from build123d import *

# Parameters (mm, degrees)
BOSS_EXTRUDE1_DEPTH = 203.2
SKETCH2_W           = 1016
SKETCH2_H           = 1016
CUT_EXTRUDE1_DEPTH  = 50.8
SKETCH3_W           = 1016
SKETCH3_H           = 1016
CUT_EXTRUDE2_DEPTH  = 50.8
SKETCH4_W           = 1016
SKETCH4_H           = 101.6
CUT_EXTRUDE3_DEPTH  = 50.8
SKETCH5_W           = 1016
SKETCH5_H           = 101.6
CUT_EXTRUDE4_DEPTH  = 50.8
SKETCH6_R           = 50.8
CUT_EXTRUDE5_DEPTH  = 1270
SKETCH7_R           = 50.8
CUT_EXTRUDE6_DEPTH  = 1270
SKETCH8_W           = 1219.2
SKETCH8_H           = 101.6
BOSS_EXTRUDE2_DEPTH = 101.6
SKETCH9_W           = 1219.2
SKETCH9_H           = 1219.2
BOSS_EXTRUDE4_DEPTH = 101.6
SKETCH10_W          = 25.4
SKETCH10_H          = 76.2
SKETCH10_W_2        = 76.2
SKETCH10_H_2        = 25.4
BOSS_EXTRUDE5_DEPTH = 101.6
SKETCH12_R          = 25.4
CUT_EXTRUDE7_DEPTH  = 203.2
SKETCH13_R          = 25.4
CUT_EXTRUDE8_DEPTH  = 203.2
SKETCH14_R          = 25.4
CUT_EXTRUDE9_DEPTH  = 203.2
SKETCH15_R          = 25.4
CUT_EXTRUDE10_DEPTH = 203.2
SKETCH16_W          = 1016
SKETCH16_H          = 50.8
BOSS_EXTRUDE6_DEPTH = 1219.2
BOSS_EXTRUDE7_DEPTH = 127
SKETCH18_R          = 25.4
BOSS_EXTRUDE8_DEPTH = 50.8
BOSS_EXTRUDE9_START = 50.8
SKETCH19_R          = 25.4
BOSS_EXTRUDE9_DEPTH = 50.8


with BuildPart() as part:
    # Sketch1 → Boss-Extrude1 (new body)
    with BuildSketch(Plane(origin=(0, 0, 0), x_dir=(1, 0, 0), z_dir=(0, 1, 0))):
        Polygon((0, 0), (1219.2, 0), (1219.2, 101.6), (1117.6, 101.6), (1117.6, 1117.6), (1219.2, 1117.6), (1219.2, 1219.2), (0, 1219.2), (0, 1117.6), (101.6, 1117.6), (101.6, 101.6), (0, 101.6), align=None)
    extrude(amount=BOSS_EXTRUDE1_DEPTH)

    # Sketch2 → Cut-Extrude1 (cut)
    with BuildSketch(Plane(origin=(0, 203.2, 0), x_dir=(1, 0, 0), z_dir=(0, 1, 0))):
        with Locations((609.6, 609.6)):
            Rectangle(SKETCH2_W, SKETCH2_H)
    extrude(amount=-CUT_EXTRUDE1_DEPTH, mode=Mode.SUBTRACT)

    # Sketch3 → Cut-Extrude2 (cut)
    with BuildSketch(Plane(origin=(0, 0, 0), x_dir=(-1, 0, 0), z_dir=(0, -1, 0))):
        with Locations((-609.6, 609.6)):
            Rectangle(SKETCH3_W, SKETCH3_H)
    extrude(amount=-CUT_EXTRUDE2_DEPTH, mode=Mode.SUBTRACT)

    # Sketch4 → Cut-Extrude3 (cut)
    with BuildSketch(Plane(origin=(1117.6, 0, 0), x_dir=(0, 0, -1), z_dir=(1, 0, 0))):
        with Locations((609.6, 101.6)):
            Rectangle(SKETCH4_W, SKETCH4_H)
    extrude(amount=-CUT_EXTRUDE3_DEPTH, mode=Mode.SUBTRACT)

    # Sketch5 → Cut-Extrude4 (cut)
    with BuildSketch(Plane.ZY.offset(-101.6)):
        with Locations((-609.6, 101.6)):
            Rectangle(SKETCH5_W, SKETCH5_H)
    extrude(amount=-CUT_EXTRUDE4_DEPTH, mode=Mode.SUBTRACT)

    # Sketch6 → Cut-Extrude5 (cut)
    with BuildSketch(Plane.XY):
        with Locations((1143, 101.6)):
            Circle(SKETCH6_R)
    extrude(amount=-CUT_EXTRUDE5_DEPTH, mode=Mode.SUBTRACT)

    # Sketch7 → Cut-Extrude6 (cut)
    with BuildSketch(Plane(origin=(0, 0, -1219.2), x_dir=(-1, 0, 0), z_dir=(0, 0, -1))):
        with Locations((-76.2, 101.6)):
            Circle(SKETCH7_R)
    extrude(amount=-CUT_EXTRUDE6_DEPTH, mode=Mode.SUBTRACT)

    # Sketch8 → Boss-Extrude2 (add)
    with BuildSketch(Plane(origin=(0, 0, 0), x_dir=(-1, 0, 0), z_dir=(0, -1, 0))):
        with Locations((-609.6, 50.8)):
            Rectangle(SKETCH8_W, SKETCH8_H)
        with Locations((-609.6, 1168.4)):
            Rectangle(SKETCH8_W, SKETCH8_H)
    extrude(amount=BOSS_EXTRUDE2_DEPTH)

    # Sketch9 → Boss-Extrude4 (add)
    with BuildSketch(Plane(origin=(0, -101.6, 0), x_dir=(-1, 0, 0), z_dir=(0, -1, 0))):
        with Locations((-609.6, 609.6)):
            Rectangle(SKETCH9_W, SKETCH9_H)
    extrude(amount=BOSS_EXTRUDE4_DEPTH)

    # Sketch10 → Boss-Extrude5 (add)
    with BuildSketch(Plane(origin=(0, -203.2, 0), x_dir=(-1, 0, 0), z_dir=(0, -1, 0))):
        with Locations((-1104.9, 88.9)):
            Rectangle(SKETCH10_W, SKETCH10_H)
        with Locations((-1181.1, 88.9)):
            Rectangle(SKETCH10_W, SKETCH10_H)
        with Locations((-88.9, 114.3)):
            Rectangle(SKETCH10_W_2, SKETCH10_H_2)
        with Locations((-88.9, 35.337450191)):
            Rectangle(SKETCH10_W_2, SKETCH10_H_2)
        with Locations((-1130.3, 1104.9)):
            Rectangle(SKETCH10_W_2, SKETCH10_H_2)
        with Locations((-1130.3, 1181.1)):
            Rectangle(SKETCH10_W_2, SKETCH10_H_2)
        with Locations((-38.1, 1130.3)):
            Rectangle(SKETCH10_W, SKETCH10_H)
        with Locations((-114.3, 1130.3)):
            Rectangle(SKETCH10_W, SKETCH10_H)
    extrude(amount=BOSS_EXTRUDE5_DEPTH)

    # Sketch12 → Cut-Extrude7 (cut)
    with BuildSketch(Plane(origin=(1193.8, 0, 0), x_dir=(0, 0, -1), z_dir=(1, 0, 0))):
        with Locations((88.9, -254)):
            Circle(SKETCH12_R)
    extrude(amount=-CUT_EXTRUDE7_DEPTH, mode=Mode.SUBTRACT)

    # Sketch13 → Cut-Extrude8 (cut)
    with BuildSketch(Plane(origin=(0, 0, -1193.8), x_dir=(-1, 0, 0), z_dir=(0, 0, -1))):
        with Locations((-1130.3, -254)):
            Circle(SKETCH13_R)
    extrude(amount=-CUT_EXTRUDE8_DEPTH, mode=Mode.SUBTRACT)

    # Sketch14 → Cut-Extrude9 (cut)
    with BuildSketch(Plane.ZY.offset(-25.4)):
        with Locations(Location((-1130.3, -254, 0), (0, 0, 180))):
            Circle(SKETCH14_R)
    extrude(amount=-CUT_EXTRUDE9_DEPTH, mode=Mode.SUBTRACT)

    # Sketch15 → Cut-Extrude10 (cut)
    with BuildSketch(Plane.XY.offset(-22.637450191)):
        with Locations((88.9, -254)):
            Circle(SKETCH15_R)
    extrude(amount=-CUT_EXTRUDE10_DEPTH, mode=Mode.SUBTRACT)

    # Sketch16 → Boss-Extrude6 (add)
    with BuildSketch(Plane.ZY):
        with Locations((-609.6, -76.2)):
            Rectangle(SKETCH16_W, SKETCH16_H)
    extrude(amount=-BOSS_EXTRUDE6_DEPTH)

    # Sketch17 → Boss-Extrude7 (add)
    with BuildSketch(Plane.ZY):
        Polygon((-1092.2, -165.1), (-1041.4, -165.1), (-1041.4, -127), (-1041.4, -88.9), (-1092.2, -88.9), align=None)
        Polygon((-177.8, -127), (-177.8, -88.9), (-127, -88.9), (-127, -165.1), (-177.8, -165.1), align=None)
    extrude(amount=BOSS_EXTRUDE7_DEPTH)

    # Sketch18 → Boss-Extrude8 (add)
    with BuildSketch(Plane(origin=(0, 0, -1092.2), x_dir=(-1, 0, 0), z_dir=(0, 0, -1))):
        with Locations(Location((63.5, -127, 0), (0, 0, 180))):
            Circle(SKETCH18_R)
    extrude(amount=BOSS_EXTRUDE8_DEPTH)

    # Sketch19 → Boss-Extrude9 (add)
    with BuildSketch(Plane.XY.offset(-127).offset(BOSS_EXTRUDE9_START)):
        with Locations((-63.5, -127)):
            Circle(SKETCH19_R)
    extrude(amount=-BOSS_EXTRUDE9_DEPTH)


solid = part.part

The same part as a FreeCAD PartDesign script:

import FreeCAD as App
import Part
import Sketcher
Q = App.Units.Quantity

doc = App.newDocument("Part")
body = doc.addObject("PartDesign::Body", "Body")

sketch1 = doc.addObject("Sketcher::SketchObject", "Sketch")
body.addObject(sketch1)
sketch1.AttachmentSupport = (doc.XZ_Plane, [""])
sketch1.MapMode = "FlatFace"
sketch1.addGeometry(Part.LineSegment(App.Vector(0, 0, 0), App.Vector(1219, 0, 0)), False)
sketch1.addGeometry(Part.LineSegment(App.Vector(1219, 0, 0), App.Vector(1219, -102, 0)), False)
sketch1.addGeometry(Part.LineSegment(App.Vector(1219, -102, 0), App.Vector(1118, -102, 0)), False)
sketch1.addGeometry(Part.LineSegment(App.Vector(1118, -102, 0), App.Vector(1118, -1118, 0)), False)
sketch1.addGeometry(Part.LineSegment(App.Vector(1118, -1118, 0), App.Vector(1219, -1118, 0)), False)
sketch1.addGeometry(Part.LineSegment(App.Vector(1219, -1118, 0), App.Vector(1219, -1219, 0)), False)
sketch1.addGeometry(Part.LineSegment(App.Vector(1219, -1219, 0), App.Vector(0, -1219, 0)), False)
sketch1.addGeometry(Part.LineSegment(App.Vector(0, -1219, 0), App.Vector(0, -1118, 0)), False)
sketch1.addGeometry(Part.LineSegment(App.Vector(0, -1118, 0), App.Vector(102, -1118, 0)), False)
sketch1.addGeometry(Part.LineSegment(App.Vector(102, -1118, 0), App.Vector(102, -102, 0)), False)
sketch1.addGeometry(Part.LineSegment(App.Vector(102, -102, 0), App.Vector(0, -102, 0)), False)
sketch1.addGeometry(Part.LineSegment(App.Vector(0, -102, 0), App.Vector(0, 0, 0)), False)
sketch1.addConstraint(Sketcher.Constraint("Coincident", 0, 2, 1, 1))
sketch1.addConstraint(Sketcher.Constraint("Coincident", 1, 2, 2, 1))
sketch1.addConstraint(Sketcher.Constraint("Coincident", 2, 2, 3, 1))
sketch1.addConstraint(Sketcher.Constraint("Coincident", 3, 2, 4, 1))
sketch1.addConstraint(Sketcher.Constraint("Coincident", 4, 2, 5, 1))
sketch1.addConstraint(Sketcher.Constraint("Coincident", 5, 2, 6, 1))
sketch1.addConstraint(Sketcher.Constraint("Coincident", 6, 2, 7, 1))
sketch1.addConstraint(Sketcher.Constraint("Coincident", 7, 2, 8, 1))
sketch1.addConstraint(Sketcher.Constraint("Coincident", 8, 2, 9, 1))
sketch1.addConstraint(Sketcher.Constraint("Coincident", 9, 2, 10, 1))
sketch1.addConstraint(Sketcher.Constraint("Coincident", 10, 2, 11, 1))
sketch1.addConstraint(Sketcher.Constraint("Coincident", 11, 2, 0, 1))
sketch1.addConstraint(Sketcher.Constraint("Horizontal", 0))
sketch1.addConstraint(Sketcher.Constraint("Vertical", 1))
sketch1.addConstraint(Sketcher.Constraint("Horizontal", 2))
sketch1.addConstraint(Sketcher.Constraint("Vertical", 3))
sketch1.addConstraint(Sketcher.Constraint("Horizontal", 4))
sketch1.addConstraint(Sketcher.Constraint("Vertical", 5))
sketch1.addConstraint(Sketcher.Constraint("Horizontal", 6))
sketch1.addConstraint(Sketcher.Constraint("Vertical", 7))
sketch1.addConstraint(Sketcher.Constraint("Horizontal", 8))
sketch1.addConstraint(Sketcher.Constraint("Vertical", 9))
sketch1.addConstraint(Sketcher.Constraint("Horizontal", 10))
sketch1.addConstraint(Sketcher.Constraint("Vertical", 11))
sketch1.addConstraint(Sketcher.Constraint("Coincident", 11, 2, -1, 1))
sketch1.addConstraint(Sketcher.Constraint("PointOnObject", 6, 2, -2))
sketch1.addConstraint(Sketcher.Constraint("Horizontal", 4, 2, 7, 2))
sketch1.addConstraint(Sketcher.Constraint("Horizontal", 2, 2, 9, 2))
sketch1.addConstraint(Sketcher.Constraint("Vertical", 1, 2, 4, 2))
sketch1.addConstraint(Sketcher.Constraint("Equal", 4, 8))
sketch1.addConstraint(Sketcher.Constraint("Equal", 10, 1))
sketch1.addConstraint(Sketcher.Constraint("Equal", 1, 5))
sketch1.addConstraint(Sketcher.Constraint("DistanceX", 0, 1, 0, 2, Q("48 in")))
sketch1.addConstraint(Sketcher.Constraint("DistanceX", 2, 2, 2, 1, Q("4 in")))
sketch1.addConstraint(Sketcher.Constraint("DistanceY", 3, 2, 3, 1, Q("40 in")))
pad1 = doc.addObject("PartDesign::Pad", "Pad")
body.addObject(pad1)
pad1.Profile = sketch1
pad1.Length = Q("8 in")
pad1.Reversed = True

sketch2 = doc.addObject("Sketcher::SketchObject", "Sketch001")
body.addObject(sketch2)
sketch2.AttachmentSupport = (doc.XZ_Plane, [""])
sketch2.MapMode = "FlatFace"
sketch2.AttachmentOffset = App.Placement(App.Vector(0, 0, -8 * 25.4), App.Rotation())
sketch2.addGeometry(Part.LineSegment(App.Vector(102, -1118, 0), App.Vector(102, -102, 0)), False)
sketch2.addGeometry(Part.LineSegment(App.Vector(102, -102, 0), App.Vector(1118, -102, 0)), False)
sketch2.addGeometry(Part.LineSegment(App.Vector(1118, -102, 0), App.Vector(1118, -1118, 0)), False)
sketch2.addGeometry(Part.LineSegment(App.Vector(1118, -1118, 0), App.Vector(102, -1118, 0)), False)
sketch2.addConstraint(Sketcher.Constraint("Coincident", 0, 2, 1, 1))
sketch2.addConstraint(Sketcher.Constraint("Coincident", 1, 2, 2, 1))
sketch2.addConstraint(Sketcher.Constraint("Coincident", 2, 2, 3, 1))
sketch2.addConstraint(Sketcher.Constraint("Coincident", 3, 2, 0, 1))
sketch2.addConstraint(Sketcher.Constraint("Vertical", 0))
sketch2.addConstraint(Sketcher.Constraint("Horizontal", 1))
sketch2.addConstraint(Sketcher.Constraint("Vertical", 2))
sketch2.addConstraint(Sketcher.Constraint("Horizontal", 3))
sketch2.addConstraint(Sketcher.Constraint("Equal", 3, 0))
sketch2.addConstraint(Sketcher.Constraint("DistanceX", 1, 1, 1, 2, Q("40 in")))
sketch2.addConstraint(Sketcher.Constraint("DistanceX", -1, 1, 0, 2, Q("4 in")))
sketch2.addConstraint(Sketcher.Constraint("DistanceY", 0, 2, -1, 1, Q("4 in")))
pocket1 = doc.addObject("PartDesign::Pocket", "Pocket")
body.addObject(pocket1)
pocket1.Profile = sketch2
pocket1.Length = Q("2 in")
pocket1.Reversed = True

sketch3 = doc.addObject("Sketcher::SketchObject", "Sketch002")
body.addObject(sketch3)
sketch3.AttachmentSupport = (doc.XZ_Plane, [""])
sketch3.MapMode = "FlatFace"
sketch3.addGeometry(Part.LineSegment(App.Vector(1118, -1118, 0), App.Vector(1118, -102, 0)), False)
sketch3.addGeometry(Part.LineSegment(App.Vector(1118, -102, 0), App.Vector(102, -102, 0)), False)
sketch3.addGeometry(Part.LineSegment(App.Vector(102, -102, 0), App.Vector(102, -1118, 0)), False)
sketch3.addGeometry(Part.LineSegment(App.Vector(102, -1118, 0), App.Vector(1118, -1118, 0)), False)
sketch3.addConstraint(Sketcher.Constraint("Coincident", 0, 2, 1, 1))
sketch3.addConstraint(Sketcher.Constraint("Coincident", 1, 2, 2, 1))
sketch3.addConstraint(Sketcher.Constraint("Coincident", 2, 2, 3, 1))
sketch3.addConstraint(Sketcher.Constraint("Coincident", 3, 2, 0, 1))
sketch3.addConstraint(Sketcher.Constraint("Vertical", 0))
sketch3.addConstraint(Sketcher.Constraint("Horizontal", 1))
sketch3.addConstraint(Sketcher.Constraint("Vertical", 2))
sketch3.addConstraint(Sketcher.Constraint("Horizontal", 3))
sketch3.addConstraint(Sketcher.Constraint("Equal", 3, 0))
sketch3.addConstraint(Sketcher.Constraint("DistanceX", 1, 2, 1, 1, Q("40 in")))
sketch3.addConstraint(Sketcher.Constraint("DistanceX", -1, 1, 0, 2, Q("44 in")))
sketch3.addConstraint(Sketcher.Constraint("DistanceY", 0, 2, -1, 1, Q("4 in")))
pocket2 = doc.addObject("PartDesign::Pocket", "Pocket001")
body.addObject(pocket2)
pocket2.Profile = sketch3
pocket2.Length = Q("2 in")

sketch4 = doc.addObject("Sketcher::SketchObject", "Sketch003")
body.addObject(sketch4)
sketch4.AttachmentSupport = (doc.YZ_Plane, [""])
sketch4.MapMode = "FlatFace"
sketch4.AttachmentOffset = App.Placement(App.Vector(0, 0, 44 * 25.4), App.Rotation())
sketch4.addGeometry(Part.LineSegment(App.Vector(152, -102, 0), App.Vector(51, -102, 0)), False)
sketch4.addGeometry(Part.LineSegment(App.Vector(51, -102, 0), App.Vector(51, -1118, 0)), False)
sketch4.addGeometry(Part.LineSegment(App.Vector(51, -1118, 0), App.Vector(152, -1118, 0)), False)
sketch4.addGeometry(Part.LineSegment(App.Vector(152, -1118, 0), App.Vector(152, -102, 0)), False)
sketch4.addConstraint(Sketcher.Constraint("Coincident", 0, 2, 1, 1))
sketch4.addConstraint(Sketcher.Constraint("Coincident", 1, 2, 2, 1))
sketch4.addConstraint(Sketcher.Constraint("Coincident", 2, 2, 3, 1))
sketch4.addConstraint(Sketcher.Constraint("Coincident", 3, 2, 0, 1))
sketch4.addConstraint(Sketcher.Constraint("Horizontal", 0))
sketch4.addConstraint(Sketcher.Constraint("Vertical", 1))
sketch4.addConstraint(Sketcher.Constraint("Horizontal", 2))
sketch4.addConstraint(Sketcher.Constraint("Vertical", 3))
sketch4.addConstraint(Sketcher.Constraint("DistanceX", 0, 2, 0, 1, Q("4 in")))
sketch4.addConstraint(Sketcher.Constraint("DistanceY", 1, 2, 1, 1, Q("40 in")))
sketch4.addConstraint(Sketcher.Constraint("DistanceX", -1, 1, 0, 2, Q("2 in")))
sketch4.addConstraint(Sketcher.Constraint("DistanceY", 0, 2, -1, 1, Q("4 in")))
pocket3 = doc.addObject("PartDesign::Pocket", "Pocket002")
body.addObject(pocket3)
pocket3.Profile = sketch4
pocket3.Length = Q("2 in")

sketch5 = doc.addObject("Sketcher::SketchObject", "Sketch004")
body.addObject(sketch5)
sketch5.AttachmentSupport = (doc.YZ_Plane, [""])
sketch5.MapMode = "FlatFace"
sketch5.AttachmentOffset = App.Placement(App.Vector(0, 0, 4 * 25.4), App.Rotation())
sketch5.addGeometry(Part.LineSegment(App.Vector(152, -1118, 0), App.Vector(51, -1118, 0)), False)
sketch5.addGeometry(Part.LineSegment(App.Vector(51, -1118, 0), App.Vector(51, -102, 0)), False)
sketch5.addGeometry(Part.LineSegment(App.Vector(51, -102, 0), App.Vector(152, -102, 0)), False)
sketch5.addGeometry(Part.LineSegment(App.Vector(152, -102, 0), App.Vector(152, -1118, 0)), False)
sketch5.addConstraint(Sketcher.Constraint("Coincident", 0, 2, 1, 1))
sketch5.addConstraint(Sketcher.Constraint("Coincident", 1, 2, 2, 1))
sketch5.addConstraint(Sketcher.Constraint("Coincident", 2, 2, 3, 1))
sketch5.addConstraint(Sketcher.Constraint("Coincident", 3, 2, 0, 1))
sketch5.addConstraint(Sketcher.Constraint("Horizontal", 0))
sketch5.addConstraint(Sketcher.Constraint("Vertical", 1))
sketch5.addConstraint(Sketcher.Constraint("Horizontal", 2))
sketch5.addConstraint(Sketcher.Constraint("Vertical", 3))
sketch5.addConstraint(Sketcher.Constraint("DistanceX", 0, 2, 0, 1, Q("4 in")))
sketch5.addConstraint(Sketcher.Constraint("DistanceY", 1, 1, 1, 2, Q("40 in")))
sketch5.addConstraint(Sketcher.Constraint("DistanceX", -1, 1, 0, 2, Q("2 in")))
sketch5.addConstraint(Sketcher.Constraint("DistanceY", 0, 2, -1, 1, Q("44 in")))
pocket4 = doc.addObject("PartDesign::Pocket", "Pocket003")
body.addObject(pocket4)
pocket4.Profile = sketch5
pocket4.Length = Q("2 in")
pocket4.Reversed = True

sketch6 = doc.addObject("Sketcher::SketchObject", "Sketch005")
body.addObject(sketch6)
sketch6.AttachmentSupport = (doc.XY_Plane, [""])
sketch6.MapMode = "FlatFace"
sketch6.addGeometry(Part.Circle(App.Vector(1143, 102, 0), App.Vector(0, 0, 1), 51), False)
sketch6.addConstraint(Sketcher.Constraint("Diameter", 0, Q("4 in")))
sketch6.addConstraint(Sketcher.Constraint("DistanceX", -1, 1, 0, 3, Q("45 in")))
sketch6.addConstraint(Sketcher.Constraint("DistanceY", -1, 1, 0, 3, Q("4 in")))
pocket5 = doc.addObject("PartDesign::Pocket", "Pocket004")
body.addObject(pocket5)
pocket5.Profile = sketch6
pocket5.Length = Q("50 in")

sketch7 = doc.addObject("Sketcher::SketchObject", "Sketch006")
body.addObject(sketch7)
sketch7.AttachmentSupport = (doc.XY_Plane, [""])
sketch7.MapMode = "FlatFace"
sketch7.AttachmentOffset = App.Placement(App.Vector(0, 0, -48 * 25.4), App.Rotation())
sketch7.addGeometry(Part.Circle(App.Vector(76, 102, 0), App.Vector(0, 0, 1), 51), False)
sketch7.addConstraint(Sketcher.Constraint("Diameter", 0, Q("4 in")))
sketch7.addConstraint(Sketcher.Constraint("DistanceX", -1, 1, 0, 3, Q("3 in")))
sketch7.addConstraint(Sketcher.Constraint("DistanceY", -1, 1, 0, 3, Q("4 in")))
pocket6 = doc.addObject("PartDesign::Pocket", "Pocket005")
body.addObject(pocket6)
pocket6.Profile = sketch7
pocket6.Length = Q("50 in")
pocket6.Reversed = True

sketch8 = doc.addObject("Sketcher::SketchObject", "Sketch007")
body.addObject(sketch8)
sketch8.AttachmentSupport = (doc.XZ_Plane, [""])
sketch8.MapMode = "FlatFace"
sketch8.addGeometry(Part.LineSegment(App.Vector(1219, -102, 0), App.Vector(1219, 0, 0)), False)
sketch8.addGeometry(Part.LineSegment(App.Vector(1219, 0, 0), App.Vector(0, 0, 0)), False)
sketch8.addGeometry(Part.LineSegment(App.Vector(0, 0, 0), App.Vector(0, -102, 0)), False)
sketch8.addGeometry(Part.LineSegment(App.Vector(0, -102, 0), App.Vector(1219, -102, 0)), False)
sketch8.addGeometry(Part.LineSegment(App.Vector(1219, -1219, 0), App.Vector(1219, -1118, 0)), False)
sketch8.addGeometry(Part.LineSegment(App.Vector(1219, -1118, 0), App.Vector(0, -1118, 0)), False)
sketch8.addGeometry(Part.LineSegment(App.Vector(0, -1118, 0), App.Vector(0, -1219, 0)), False)
sketch8.addGeometry(Part.LineSegment(App.Vector(0, -1219, 0), App.Vector(1219, -1219, 0)), False)
sketch8.addConstraint(Sketcher.Constraint("Coincident", 0, 2, 1, 1))
sketch8.addConstraint(Sketcher.Constraint("Coincident", 1, 2, 2, 1))
sketch8.addConstraint(Sketcher.Constraint("Coincident", 2, 2, 3, 1))
sketch8.addConstraint(Sketcher.Constraint("Coincident", 3, 2, 0, 1))
sketch8.addConstraint(Sketcher.Constraint("Coincident", 4, 2, 5, 1))
sketch8.addConstraint(Sketcher.Constraint("Coincident", 5, 2, 6, 1))
sketch8.addConstraint(Sketcher.Constraint("Coincident", 6, 2, 7, 1))
sketch8.addConstraint(Sketcher.Constraint("Coincident", 7, 2, 4, 1))
sketch8.addConstraint(Sketcher.Constraint("Vertical", 0))
sketch8.addConstraint(Sketcher.Constraint("Horizontal", 1))
sketch8.addConstraint(Sketcher.Constraint("Vertical", 2))
sketch8.addConstraint(Sketcher.Constraint("Horizontal", 3))
sketch8.addConstraint(Sketcher.Constraint("Vertical", 4))
sketch8.addConstraint(Sketcher.Constraint("Horizontal", 5))
sketch8.addConstraint(Sketcher.Constraint("Vertical", 6))
sketch8.addConstraint(Sketcher.Constraint("Horizontal", 7))
sketch8.addConstraint(Sketcher.Constraint("Coincident", 1, 2, -1, 1))
sketch8.addConstraint(Sketcher.Constraint("PointOnObject", 5, 2, -2))
sketch8.addConstraint(Sketcher.Constraint("Vertical", 3, 2, 4, 2))
sketch8.addConstraint(Sketcher.Constraint("Equal", 2, 4))
sketch8.addConstraint(Sketcher.Constraint("DistanceX", 1, 2, 1, 1, Q("48 in")))
sketch8.addConstraint(Sketcher.Constraint("DistanceY", 0, 1, 0, 2, Q("4 in")))
sketch8.addConstraint(Sketcher.Constraint("DistanceY", 4, 2, -1, 1, Q("44 in")))
pad2 = doc.addObject("PartDesign::Pad", "Pad001")
body.addObject(pad2)
pad2.Profile = sketch8
pad2.Length = Q("4 in")

sketch9 = doc.addObject("Sketcher::SketchObject", "Sketch008")
body.addObject(sketch9)
sketch9.AttachmentSupport = (doc.XZ_Plane, [""])
sketch9.MapMode = "FlatFace"
sketch9.AttachmentOffset = App.Placement(App.Vector(0, 0, 4 * 25.4), App.Rotation())
sketch9.addGeometry(Part.LineSegment(App.Vector(1219, -1219, 0), App.Vector(1219, 0, 0)), False)
sketch9.addGeometry(Part.LineSegment(App.Vector(1219, 0, 0), App.Vector(0, 0, 0)), False)
sketch9.addGeometry(Part.LineSegment(App.Vector(0, 0, 0), App.Vector(0, -1219, 0)), False)
sketch9.addGeometry(Part.LineSegment(App.Vector(0, -1219, 0), App.Vector(1219, -1219, 0)), False)
sketch9.addConstraint(Sketcher.Constraint("Coincident", 0, 2, 1, 1))
sketch9.addConstraint(Sketcher.Constraint("Coincident", 1, 2, 2, 1))
sketch9.addConstraint(Sketcher.Constraint("Coincident", 2, 2, 3, 1))
sketch9.addConstraint(Sketcher.Constraint("Coincident", 3, 2, 0, 1))
sketch9.addConstraint(Sketcher.Constraint("Vertical", 0))
sketch9.addConstraint(Sketcher.Constraint("Horizontal", 1))
sketch9.addConstraint(Sketcher.Constraint("Vertical", 2))
sketch9.addConstraint(Sketcher.Constraint("Horizontal", 3))
sketch9.addConstraint(Sketcher.Constraint("Coincident", 1, 2, -1, 1))
sketch9.addConstraint(Sketcher.Constraint("Equal", 3, 0))
sketch9.addConstraint(Sketcher.Constraint("DistanceX", 1, 2, 1, 1, Q("48 in")))
pad3 = doc.addObject("PartDesign::Pad", "Pad002")
body.addObject(pad3)
pad3.Profile = sketch9
pad3.Length = Q("4 in")

sketch10 = doc.addObject("Sketcher::SketchObject", "Sketch009")
body.addObject(sketch10)
sketch10.AttachmentSupport = (doc.XZ_Plane, [""])
sketch10.MapMode = "FlatFace"
sketch10.AttachmentOffset = App.Placement(App.Vector(0, 0, 8 * 25.4), App.Rotation())
sketch10.addGeometry(Part.LineSegment(App.Vector(1118, -127, 0), App.Vector(1118, -51, 0)), False)
sketch10.addGeometry(Part.LineSegment(App.Vector(1118, -51, 0), App.Vector(1092, -51, 0)), False)
sketch10.addGeometry(Part.LineSegment(App.Vector(1092, -51, 0), App.Vector(1092, -127, 0)), False)
sketch10.addGeometry(Part.LineSegment(App.Vector(1092, -127, 0), App.Vector(1118, -127, 0)), False)
sketch10.addGeometry(Part.LineSegment(App.Vector(1194, -127, 0), App.Vector(1194, -51, 0)), False)
sketch10.addGeometry(Part.LineSegment(App.Vector(1194, -51, 0), App.Vector(1168, -51, 0)), False)
sketch10.addGeometry(Part.LineSegment(App.Vector(1168, -51, 0), App.Vector(1168, -127, 0)), False)
sketch10.addGeometry(Part.LineSegment(App.Vector(1168, -127, 0), App.Vector(1194, -127, 0)), False)
sketch10.addGeometry(Part.LineSegment(App.Vector(127, -127, 0), App.Vector(127, -102, 0)), False)
sketch10.addGeometry(Part.LineSegment(App.Vector(127, -102, 0), App.Vector(51, -102, 0)), False)
sketch10.addGeometry(Part.LineSegment(App.Vector(51, -102, 0), App.Vector(51, -127, 0)), False)
sketch10.addGeometry(Part.LineSegment(App.Vector(51, -127, 0), App.Vector(127, -127, 0)), False)
sketch10.addGeometry(Part.LineSegment(App.Vector(127, -48, 0), App.Vector(127, -23, 0)), False)
sketch10.addGeometry(Part.LineSegment(App.Vector(127, -23, 0), App.Vector(51, -23, 0)), False)
sketch10.addGeometry(Part.LineSegment(App.Vector(51, -23, 0), App.Vector(51, -48, 0)), False)
sketch10.addGeometry(Part.LineSegment(App.Vector(51, -48, 0), App.Vector(127, -48, 0)), False)
sketch10.addGeometry(Part.LineSegment(App.Vector(1168, -1118, 0), App.Vector(1168, -1092, 0)), False)
sketch10.addGeometry(Part.LineSegment(App.Vector(1168, -1092, 0), App.Vector(1092, -1092, 0)), False)
sketch10.addGeometry(Part.LineSegment(App.Vector(1092, -1092, 0), App.Vector(1092, -1118, 0)), False)
sketch10.addGeometry(Part.LineSegment(App.Vector(1092, -1118, 0), App.Vector(1168, -1118, 0)), False)
sketch10.addGeometry(Part.LineSegment(App.Vector(1168, -1194, 0), App.Vector(1168, -1168, 0)), False)
sketch10.addGeometry(Part.LineSegment(App.Vector(1168, -1168, 0), App.Vector(1092, -1168, 0)), False)
sketch10.addGeometry(Part.LineSegment(App.Vector(1092, -1168, 0), App.Vector(1092, -1194, 0)), False)
sketch10.addGeometry(Part.LineSegment(App.Vector(1092, -1194, 0), App.Vector(1168, -1194, 0)), False)
sketch10.addGeometry(Part.LineSegment(App.Vector(51, -1168, 0), App.Vector(51, -1092, 0)), False)
sketch10.addGeometry(Part.LineSegment(App.Vector(51, -1092, 0), App.Vector(25, -1092, 0)), False)
sketch10.addGeometry(Part.LineSegment(App.Vector(25, -1092, 0), App.Vector(25, -1168, 0)), False)
sketch10.addGeometry(Part.LineSegment(App.Vector(25, -1168, 0), App.Vector(51, -1168, 0)), False)
sketch10.addGeometry(Part.LineSegment(App.Vector(127, -1168, 0), App.Vector(127, -1092, 0)), False)
sketch10.addGeometry(Part.LineSegment(App.Vector(127, -1092, 0), App.Vector(102, -1092, 0)), False)
sketch10.addGeometry(Part.LineSegment(App.Vector(102, -1092, 0), App.Vector(102, -1168, 0)), False)
sketch10.addGeometry(Part.LineSegment(App.Vector(102, -1168, 0), App.Vector(127, -1168, 0)), False)
sketch10.addConstraint(Sketcher.Constraint("Coincident", 0, 2, 1, 1))
sketch10.addConstraint(Sketcher.Constraint("Coincident", 1, 2, 2, 1))
sketch10.addConstraint(Sketcher.Constraint("Coincident", 2, 2, 3, 1))
sketch10.addConstraint(Sketcher.Constraint("Coincident", 3, 2, 0, 1))
sketch10.addConstraint(Sketcher.Constraint("Coincident", 4, 2, 5, 1))
sketch10.addConstraint(Sketcher.Constraint("Coincident", 5, 2, 6, 1))
sketch10.addConstraint(Sketcher.Constraint("Coincident", 6, 2, 7, 1))
sketch10.addConstraint(Sketcher.Constraint("Coincident", 7, 2, 4, 1))
sketch10.addConstraint(Sketcher.Constraint("Coincident", 8, 2, 9, 1))
sketch10.addConstraint(Sketcher.Constraint("Coincident", 9, 2, 10, 1))
sketch10.addConstraint(Sketcher.Constraint("Coincident", 10, 2, 11, 1))
sketch10.addConstraint(Sketcher.Constraint("Coincident", 11, 2, 8, 1))
sketch10.addConstraint(Sketcher.Constraint("Coincident", 12, 2, 13, 1))
sketch10.addConstraint(Sketcher.Constraint("Coincident", 13, 2, 14, 1))
sketch10.addConstraint(Sketcher.Constraint("Coincident", 14, 2, 15, 1))
sketch10.addConstraint(Sketcher.Constraint("Coincident", 15, 2, 12, 1))
sketch10.addConstraint(Sketcher.Constraint("Coincident", 16, 2, 17, 1))
sketch10.addConstraint(Sketcher.Constraint("Coincident", 17, 2, 18, 1))
sketch10.addConstraint(Sketcher.Constraint("Coincident", 18, 2, 19, 1))
sketch10.addConstraint(Sketcher.Constraint("Coincident", 19, 2, 16, 1))
sketch10.addConstraint(Sketcher.Constraint("Coincident", 20, 2, 21, 1))
sketch10.addConstraint(Sketcher.Constraint("Coincident", 21, 2, 22, 1))
sketch10.addConstraint(Sketcher.Constraint("Coincident", 22, 2, 23, 1))
sketch10.addConstraint(Sketcher.Constraint("Coincident", 23, 2, 20, 1))
sketch10.addConstraint(Sketcher.Constraint("Coincident", 24, 2, 25, 1))
sketch10.addConstraint(Sketcher.Constraint("Coincident", 25, 2, 26, 1))
sketch10.addConstraint(Sketcher.Constraint("Coincident", 26, 2, 27, 1))
sketch10.addConstraint(Sketcher.Constraint("Coincident", 27, 2, 24, 1))
sketch10.addConstraint(Sketcher.Constraint("Coincident", 28, 2, 29, 1))
sketch10.addConstraint(Sketcher.Constraint("Coincident", 29, 2, 30, 1))
sketch10.addConstraint(Sketcher.Constraint("Coincident", 30, 2, 31, 1))
sketch10.addConstraint(Sketcher.Constraint("Coincident", 31, 2, 28, 1))
sketch10.addConstraint(Sketcher.Constraint("Vertical", 0))
sketch10.addConstraint(Sketcher.Constraint("Horizontal", 1))
sketch10.addConstraint(Sketcher.Constraint("Vertical", 2))
sketch10.addConstraint(Sketcher.Constraint("Horizontal", 3))
sketch10.addConstraint(Sketcher.Constraint("Vertical", 4))
sketch10.addConstraint(Sketcher.Constraint("Horizontal", 5))
sketch10.addConstraint(Sketcher.Constraint("Vertical", 6))
sketch10.addConstraint(Sketcher.Constraint("Horizontal", 7))
sketch10.addConstraint(Sketcher.Constraint("Vertical", 8))
sketch10.addConstraint(Sketcher.Constraint("Horizontal", 9))
sketch10.addConstraint(Sketcher.Constraint("Vertical", 10))
sketch10.addConstraint(Sketcher.Constraint("Horizontal", 11))
sketch10.addConstraint(Sketcher.Constraint("Vertical", 12))
sketch10.addConstraint(Sketcher.Constraint("Horizontal", 13))
sketch10.addConstraint(Sketcher.Constraint("Vertical", 14))
sketch10.addConstraint(Sketcher.Constraint("Horizontal", 15))
sketch10.addConstraint(Sketcher.Constraint("Vertical", 16))
sketch10.addConstraint(Sketcher.Constraint("Horizontal", 17))
sketch10.addConstraint(Sketcher.Constraint("Vertical", 18))
sketch10.addConstraint(Sketcher.Constraint("Horizontal", 19))
sketch10.addConstraint(Sketcher.Constraint("Vertical", 20))
sketch10.addConstraint(Sketcher.Constraint("Horizontal", 21))
sketch10.addConstraint(Sketcher.Constraint("Vertical", 22))
sketch10.addConstraint(Sketcher.Constraint("Horizontal", 23))
sketch10.addConstraint(Sketcher.Constraint("Vertical", 24))
sketch10.addConstraint(Sketcher.Constraint("Horizontal", 25))
sketch10.addConstraint(Sketcher.Constraint("Vertical", 26))
sketch10.addConstraint(Sketcher.Constraint("Horizontal", 27))
sketch10.addConstraint(Sketcher.Constraint("Vertical", 28))
sketch10.addConstraint(Sketcher.Constraint("Horizontal", 29))
sketch10.addConstraint(Sketcher.Constraint("Vertical", 30))
sketch10.addConstraint(Sketcher.Constraint("Horizontal", 31))
sketch10.addConstraint(Sketcher.Constraint("Horizontal", 1, 2, 4, 2))
sketch10.addConstraint(Sketcher.Constraint("Horizontal", 3, 2, 6, 2))
sketch10.addConstraint(Sketcher.Constraint("Horizontal", 7, 2, 10, 2))
sketch10.addConstraint(Sketcher.Constraint("Horizontal", 17, 2, 24, 2))
sketch10.addConstraint(Sketcher.Constraint("Horizontal", 21, 2, 26, 2))
sketch10.addConstraint(Sketcher.Constraint("Horizontal", 25, 2, 28, 2))
sketch10.addConstraint(Sketcher.Constraint("Horizontal", 27, 2, 30, 2))
sketch10.addConstraint(Sketcher.Constraint("Vertical", 11, 2, 12, 2))
sketch10.addConstraint(Sketcher.Constraint("Vertical", 10, 2, 13, 2))
sketch10.addConstraint(Sketcher.Constraint("Vertical", 6, 2, 16, 2))
sketch10.addConstraint(Sketcher.Constraint("Vertical", 2, 2, 17, 2))
sketch10.addConstraint(Sketcher.Constraint("Vertical", 19, 2, 20, 2))
sketch10.addConstraint(Sketcher.Constraint("Vertical", 18, 2, 21, 2))
sketch10.addConstraint(Sketcher.Constraint("Vertical", 14, 2, 24, 2))
sketch10.addConstraint(Sketcher.Constraint("Vertical", 15, 2, 28, 2))
sketch10.addConstraint(Sketcher.Constraint("Equal", 3, 5))
sketch10.addConstraint(Sketcher.Constraint("Equal", 15, 17))
sketch10.addConstraint(Sketcher.Constraint("Equal", 7, 25))
sketch10.addConstraint(Sketcher.Constraint("Equal", 27, 29))
sketch10.addConstraint(Sketcher.Constraint("Equal", 23, 0))
sketch10.addConstraint(Sketcher.Constraint("Equal", 31, 8))
sketch10.addConstraint(Sketcher.Constraint("Equal", 10, 12))
sketch10.addConstraint(Sketcher.Constraint("Equal", 14, 16))
sketch10.addConstraint(Sketcher.Constraint("Equal", 18, 20))
sketch10.addConstraint(Sketcher.Constraint("Equal", 6, 24))
sketch10.addConstraint(Sketcher.Constraint("DistanceX", 1, 2, 1, 1, Q("1 in")))
sketch10.addConstraint(Sketcher.Constraint("DistanceX", 9, 2, 9, 1, Q("3 in")))
sketch10.addConstraint(Sketcher.Constraint("DistanceX", -1, 1, 0, 2, Q("44 in")))
sketch10.addConstraint(Sketcher.Constraint("DistanceY", 0, 2, -1, 1, Q("2 in")))
sketch10.addConstraint(Sketcher.Constraint("DistanceX", -1, 1, 8, 2, Q("5 in")))
sketch10.addConstraint(Sketcher.Constraint("DistanceY", 16, 2, -1, 1, Q("43 in")))
sketch10.addConstraint(Sketcher.Constraint("DistanceY", 12, 2, -1, 1, 22.63745))
pad4 = doc.addObject("PartDesign::Pad", "Pad003")
body.addObject(pad4)
pad4.Profile = sketch10
pad4.Length = Q("4 in")

sketch11 = doc.addObject("Sketcher::SketchObject", "Sketch010")
body.addObject(sketch11)
sketch11.AttachmentSupport = (doc.YZ_Plane, [""])
sketch11.MapMode = "FlatFace"
sketch11.AttachmentOffset = App.Placement(App.Vector(0, 0, 47 * 25.4), App.Rotation())
sketch11.addGeometry(Part.Circle(App.Vector(-254, -89, 0), App.Vector(0, 0, 1), 25), False)
sketch11.addConstraint(Sketcher.Constraint("Diameter", 0, Q("2 in")))
sketch11.addConstraint(Sketcher.Constraint("DistanceX", 0, 3, -1, 1, Q("10 in")))
sketch11.addConstraint(Sketcher.Constraint("DistanceY", 0, 3, -1, 1, Q("3.5 in")))
pocket7 = doc.addObject("PartDesign::Pocket", "Pocket006")
body.addObject(pocket7)
pocket7.Profile = sketch11
pocket7.Length = Q("8 in")

sketch12 = doc.addObject("Sketcher::SketchObject", "Sketch011")
body.addObject(sketch12)
sketch12.AttachmentSupport = (doc.XY_Plane, [""])
sketch12.MapMode = "FlatFace"
sketch12.AttachmentOffset = App.Placement(App.Vector(0, 0, -47 * 25.4), App.Rotation())
sketch12.addGeometry(Part.Circle(App.Vector(1130, -254, 0), App.Vector(0, 0, 1), 25), False)
sketch12.addConstraint(Sketcher.Constraint("Diameter", 0, Q("2 in")))
sketch12.addConstraint(Sketcher.Constraint("DistanceY", 0, 3, -1, 1, Q("10 in")))
sketch12.addConstraint(Sketcher.Constraint("DistanceX", -1, 1, 0, 3, Q("44.5 in")))
pocket8 = doc.addObject("PartDesign::Pocket", "Pocket007")
body.addObject(pocket8)
pocket8.Profile = sketch12
pocket8.Length = Q("8 in")
pocket8.Reversed = True

sketch13 = doc.addObject("Sketcher::SketchObject", "Sketch012")
body.addObject(sketch13)
sketch13.AttachmentSupport = (doc.YZ_Plane, [""])
sketch13.MapMode = "FlatFace"
sketch13.AttachmentOffset = App.Placement(App.Vector(0, 0, 1 * 25.4), App.Rotation())
sketch13.addGeometry(Part.Circle(App.Vector(-254, -1130, 0), App.Vector(0, 0, 1), 25), False)
sketch13.addConstraint(Sketcher.Constraint("Diameter", 0, Q("2 in")))
sketch13.addConstraint(Sketcher.Constraint("DistanceX", 0, 3, -1, 1, Q("10 in")))
sketch13.addConstraint(Sketcher.Constraint("DistanceY", 0, 3, -1, 1, Q("44.5 in")))
pocket9 = doc.addObject("PartDesign::Pocket", "Pocket008")
body.addObject(pocket9)
pocket9.Profile = sketch13
pocket9.Length = Q("8 in")
pocket9.Reversed = True

sketch14 = doc.addObject("Sketcher::SketchObject", "Sketch013")
body.addObject(sketch14)
sketch14.AttachmentSupport = (doc.XY_Plane, [""])
sketch14.MapMode = "FlatFace"
sketch14.AttachmentOffset = App.Placement(App.Vector(0, 0, -22.63745), App.Rotation())
sketch14.addGeometry(Part.Circle(App.Vector(89, -254, 0), App.Vector(0, 0, 1), 25), False)
sketch14.addConstraint(Sketcher.Constraint("Diameter", 0, Q("2 in")))
sketch14.addConstraint(Sketcher.Constraint("DistanceY", 0, 3, -1, 1, Q("10 in")))
sketch14.addConstraint(Sketcher.Constraint("DistanceX", -1, 1, 0, 3, Q("3.5 in")))
pocket10 = doc.addObject("PartDesign::Pocket", "Pocket009")
body.addObject(pocket10)
pocket10.Profile = sketch14
pocket10.Length = Q("8 in")

sketch15 = doc.addObject("Sketcher::SketchObject", "Sketch014")
body.addObject(sketch15)
sketch15.AttachmentSupport = (doc.YZ_Plane, [""])
sketch15.MapMode = "FlatFace"
sketch15.addGeometry(Part.LineSegment(App.Vector(-51, -1118, 0), App.Vector(-102, -1118, 0)), False)
sketch15.addGeometry(Part.LineSegment(App.Vector(-102, -1118, 0), App.Vector(-102, -102, 0)), False)
sketch15.addGeometry(Part.LineSegment(App.Vector(-102, -102, 0), App.Vector(-51, -102, 0)), False)
sketch15.addGeometry(Part.LineSegment(App.Vector(-51, -102, 0), App.Vector(-51, -1118, 0)), False)
sketch15.addConstraint(Sketcher.Constraint("Coincident", 0, 2, 1, 1))
sketch15.addConstraint(Sketcher.Constraint("Coincident", 1, 2, 2, 1))
sketch15.addConstraint(Sketcher.Constraint("Coincident", 2, 2, 3, 1))
sketch15.addConstraint(Sketcher.Constraint("Coincident", 3, 2, 0, 1))
sketch15.addConstraint(Sketcher.Constraint("Horizontal", 0))
sketch15.addConstraint(Sketcher.Constraint("Vertical", 1))
sketch15.addConstraint(Sketcher.Constraint("Horizontal", 2))
sketch15.addConstraint(Sketcher.Constraint("Vertical", 3))
sketch15.addConstraint(Sketcher.Constraint("DistanceX", 0, 2, 0, 1, Q("2 in")))
sketch15.addConstraint(Sketcher.Constraint("DistanceY", 1, 1, 1, 2, Q("40 in")))
sketch15.addConstraint(Sketcher.Constraint("DistanceX", 0, 2, -1, 1, Q("4 in")))
sketch15.addConstraint(Sketcher.Constraint("DistanceY", 0, 2, -1, 1, Q("44 in")))
pad5 = doc.addObject("PartDesign::Pad", "Pad004")
body.addObject(pad5)
pad5.Profile = sketch15
pad5.Length = Q("48 in")

sketch16 = doc.addObject("Sketcher::SketchObject", "Sketch015")
body.addObject(sketch16)
sketch16.AttachmentSupport = (doc.YZ_Plane, [""])
sketch16.MapMode = "FlatFace"
sketch16.addGeometry(Part.LineSegment(App.Vector(-165, -1092, 0), App.Vector(-165, -1041, 0)), False)
sketch16.addGeometry(Part.LineSegment(App.Vector(-165, -1041, 0), App.Vector(-89, -1041, 0)), False)
sketch16.addGeometry(Part.LineSegment(App.Vector(-89, -1041, 0), App.Vector(-89, -1092, 0)), False)
sketch16.addGeometry(Part.LineSegment(App.Vector(-89, -1092, 0), App.Vector(-165, -1092, 0)), False)
sketch16.addGeometry(Part.LineSegment(App.Vector(-89, -178, 0), App.Vector(-165, -178, 0)), False)
sketch16.addGeometry(Part.LineSegment(App.Vector(-165, -178, 0), App.Vector(-165, -127, 0)), False)
sketch16.addGeometry(Part.LineSegment(App.Vector(-165, -127, 0), App.Vector(-89, -127, 0)), False)
sketch16.addGeometry(Part.LineSegment(App.Vector(-89, -127, 0), App.Vector(-89, -178, 0)), False)
sketch16.addConstraint(Sketcher.Constraint("Coincident", 0, 2, 1, 1))
sketch16.addConstraint(Sketcher.Constraint("Coincident", 1, 2, 2, 1))
sketch16.addConstraint(Sketcher.Constraint("Coincident", 2, 2, 3, 1))
sketch16.addConstraint(Sketcher.Constraint("Coincident", 3, 2, 0, 1))
sketch16.addConstraint(Sketcher.Constraint("Coincident", 4, 2, 5, 1))
sketch16.addConstraint(Sketcher.Constraint("Coincident", 5, 2, 6, 1))
sketch16.addConstraint(Sketcher.Constraint("Coincident", 6, 2, 7, 1))
sketch16.addConstraint(Sketcher.Constraint("Coincident", 7, 2, 4, 1))
sketch16.addConstraint(Sketcher.Constraint("Vertical", 0))
sketch16.addConstraint(Sketcher.Constraint("Horizontal", 1))
sketch16.addConstraint(Sketcher.Constraint("Vertical", 2))
sketch16.addConstraint(Sketcher.Constraint("Horizontal", 3))
sketch16.addConstraint(Sketcher.Constraint("Horizontal", 4))
sketch16.addConstraint(Sketcher.Constraint("Vertical", 5))
sketch16.addConstraint(Sketcher.Constraint("Horizontal", 6))
sketch16.addConstraint(Sketcher.Constraint("Vertical", 7))
sketch16.addConstraint(Sketcher.Constraint("Vertical", 3, 2, 4, 2))
sketch16.addConstraint(Sketcher.Constraint("Vertical", 2, 2, 6, 2))
sketch16.addConstraint(Sketcher.Constraint("Equal", 2, 5))
sketch16.addConstraint(Sketcher.Constraint("DistanceX", 1, 1, 1, 2, Q("3 in")))
sketch16.addConstraint(Sketcher.Constraint("DistanceY", 0, 1, 0, 2, Q("2 in")))
sketch16.addConstraint(Sketcher.Constraint("DistanceY", 0, 2, -1, 1, Q("41 in")))
sketch16.addConstraint(Sketcher.Constraint("DistanceY", 4, 2, -1, 1, Q("7 in")))
sketch16.addConstraint(Sketcher.Constraint("DistanceX", 0, 2, -1, 1, Q("6.5 in")))
pad6 = doc.addObject("PartDesign::Pad", "Pad005")
body.addObject(pad6)
pad6.Profile = sketch16
pad6.Length = Q("5 in")
pad6.Reversed = True

sketch17 = doc.addObject("Sketcher::SketchObject", "Sketch016")
body.addObject(sketch17)
sketch17.AttachmentSupport = (doc.XY_Plane, [""])
sketch17.MapMode = "FlatFace"
sketch17.AttachmentOffset = App.Placement(App.Vector(0, 0, -43 * 25.4), App.Rotation())
sketch17.addGeometry(Part.Circle(App.Vector(-64, -127, 0), App.Vector(0, 0, 1), 25), False)
sketch17.addConstraint(Sketcher.Constraint("Diameter", 0, Q("2 in")))
sketch17.addConstraint(Sketcher.Constraint("DistanceY", 0, 3, -1, 1, Q("5 in")))
sketch17.addConstraint(Sketcher.Constraint("DistanceX", 0, 3, -1, 1, Q("2.5 in")))
pad7 = doc.addObject("PartDesign::Pad", "Pad006")
body.addObject(pad7)
pad7.Profile = sketch17
pad7.Length = Q("2 in")
pad7.Reversed = True

sketch18 = doc.addObject("Sketcher::SketchObject", "Sketch017")
body.addObject(sketch18)
sketch18.AttachmentSupport = (doc.XY_Plane, [""])
sketch18.MapMode = "FlatFace"
sketch18.AttachmentOffset = App.Placement(App.Vector(0, 0, -3 * 25.4), App.Rotation())
sketch18.addGeometry(Part.Circle(App.Vector(-64, -127, 0), App.Vector(0, 0, 1), 25), False)
sketch18.addConstraint(Sketcher.Constraint("Diameter", 0, Q("2 in")))
sketch18.addConstraint(Sketcher.Constraint("DistanceY", 0, 3, -1, 1, Q("5 in")))
sketch18.addConstraint(Sketcher.Constraint("DistanceX", 0, 3, -1, 1, Q("2.5 in")))
pad8 = doc.addObject("PartDesign::Pad", "Pad007")
body.addObject(pad8)
pad8.Profile = sketch18
pad8.Length = Q("2 in")
pad8.Reversed = True

doc.recompute()
